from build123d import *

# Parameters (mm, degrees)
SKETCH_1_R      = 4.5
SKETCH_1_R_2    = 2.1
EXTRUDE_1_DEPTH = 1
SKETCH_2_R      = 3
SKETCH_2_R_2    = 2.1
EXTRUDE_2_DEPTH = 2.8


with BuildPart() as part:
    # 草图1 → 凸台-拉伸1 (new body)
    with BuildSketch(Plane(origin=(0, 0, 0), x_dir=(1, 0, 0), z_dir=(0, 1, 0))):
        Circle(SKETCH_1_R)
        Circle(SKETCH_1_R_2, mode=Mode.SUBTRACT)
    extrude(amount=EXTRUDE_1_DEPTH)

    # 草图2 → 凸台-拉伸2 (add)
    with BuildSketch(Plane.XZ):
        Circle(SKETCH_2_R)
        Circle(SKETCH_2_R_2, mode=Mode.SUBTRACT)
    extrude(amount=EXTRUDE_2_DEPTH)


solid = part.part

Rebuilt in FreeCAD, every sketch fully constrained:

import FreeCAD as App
import Part
import Sketcher

V = App.Vector

doc = App.newDocument("Part")
body = doc.addObject("PartDesign::Body", "Body")

# Sketch on XZ plane
sketch1 = doc.addObject("Sketcher::SketchObject", "Sketch")
body.addObject(sketch1)
sketch1.AttachmentSupport = (doc.XZ_Plane, [""])
sketch1.MapMode = "FlatFace"
sketch1.addGeometry([
    Part.Circle(V(0, 0, 0), V(0, 0, 1), 4.5),
    Part.Circle(V(0, 0, 0), V(0, 0, 1), 2.1),
], False)
sketch1.addConstraint([
    Sketcher.Constraint("Coincident", 0, 3, -1, 1),
    Sketcher.Constraint("Coincident", 1, 3, -1, 1),
    Sketcher.Constraint("Diameter", 0, 9.0),
    Sketcher.Constraint("Diameter", 1, 4.2),
])
pad1 = doc.addObject("PartDesign::Pad", "Pad")
body.addObject(pad1)
pad1.Profile = sketch1
pad1.Length = 1
pad1.Reversed = True

# Sketch on XZ plane
sketch2 = doc.addObject("Sketcher::SketchObject", "Sketch001")
body.addObject(sketch2)
sketch2.AttachmentSupport = (doc.XZ_Plane, [""])
sketch2.MapMode = "FlatFace"
sketch2.addGeometry([
    Part.Circle(V(0, 0, 0), V(0, 0, 1), 3),
    Part.Circle(V(0, 0, 0), V(0, 0, 1), 2.1),
], False)
sketch2.addConstraint([
    Sketcher.Constraint("Coincident", 0, 3, -1, 1),
    Sketcher.Constraint("Coincident", 1, 3, -1, 1),
    Sketcher.Constraint("Diameter", 0, 6.0),
    Sketcher.Constraint("Diameter", 1, 4.2),
])
pad2 = doc.addObject("PartDesign::Pad", "Pad001")
body.addObject(pad2)
pad2.Profile = sketch2
pad2.Length = 2.8

doc.recompute()
